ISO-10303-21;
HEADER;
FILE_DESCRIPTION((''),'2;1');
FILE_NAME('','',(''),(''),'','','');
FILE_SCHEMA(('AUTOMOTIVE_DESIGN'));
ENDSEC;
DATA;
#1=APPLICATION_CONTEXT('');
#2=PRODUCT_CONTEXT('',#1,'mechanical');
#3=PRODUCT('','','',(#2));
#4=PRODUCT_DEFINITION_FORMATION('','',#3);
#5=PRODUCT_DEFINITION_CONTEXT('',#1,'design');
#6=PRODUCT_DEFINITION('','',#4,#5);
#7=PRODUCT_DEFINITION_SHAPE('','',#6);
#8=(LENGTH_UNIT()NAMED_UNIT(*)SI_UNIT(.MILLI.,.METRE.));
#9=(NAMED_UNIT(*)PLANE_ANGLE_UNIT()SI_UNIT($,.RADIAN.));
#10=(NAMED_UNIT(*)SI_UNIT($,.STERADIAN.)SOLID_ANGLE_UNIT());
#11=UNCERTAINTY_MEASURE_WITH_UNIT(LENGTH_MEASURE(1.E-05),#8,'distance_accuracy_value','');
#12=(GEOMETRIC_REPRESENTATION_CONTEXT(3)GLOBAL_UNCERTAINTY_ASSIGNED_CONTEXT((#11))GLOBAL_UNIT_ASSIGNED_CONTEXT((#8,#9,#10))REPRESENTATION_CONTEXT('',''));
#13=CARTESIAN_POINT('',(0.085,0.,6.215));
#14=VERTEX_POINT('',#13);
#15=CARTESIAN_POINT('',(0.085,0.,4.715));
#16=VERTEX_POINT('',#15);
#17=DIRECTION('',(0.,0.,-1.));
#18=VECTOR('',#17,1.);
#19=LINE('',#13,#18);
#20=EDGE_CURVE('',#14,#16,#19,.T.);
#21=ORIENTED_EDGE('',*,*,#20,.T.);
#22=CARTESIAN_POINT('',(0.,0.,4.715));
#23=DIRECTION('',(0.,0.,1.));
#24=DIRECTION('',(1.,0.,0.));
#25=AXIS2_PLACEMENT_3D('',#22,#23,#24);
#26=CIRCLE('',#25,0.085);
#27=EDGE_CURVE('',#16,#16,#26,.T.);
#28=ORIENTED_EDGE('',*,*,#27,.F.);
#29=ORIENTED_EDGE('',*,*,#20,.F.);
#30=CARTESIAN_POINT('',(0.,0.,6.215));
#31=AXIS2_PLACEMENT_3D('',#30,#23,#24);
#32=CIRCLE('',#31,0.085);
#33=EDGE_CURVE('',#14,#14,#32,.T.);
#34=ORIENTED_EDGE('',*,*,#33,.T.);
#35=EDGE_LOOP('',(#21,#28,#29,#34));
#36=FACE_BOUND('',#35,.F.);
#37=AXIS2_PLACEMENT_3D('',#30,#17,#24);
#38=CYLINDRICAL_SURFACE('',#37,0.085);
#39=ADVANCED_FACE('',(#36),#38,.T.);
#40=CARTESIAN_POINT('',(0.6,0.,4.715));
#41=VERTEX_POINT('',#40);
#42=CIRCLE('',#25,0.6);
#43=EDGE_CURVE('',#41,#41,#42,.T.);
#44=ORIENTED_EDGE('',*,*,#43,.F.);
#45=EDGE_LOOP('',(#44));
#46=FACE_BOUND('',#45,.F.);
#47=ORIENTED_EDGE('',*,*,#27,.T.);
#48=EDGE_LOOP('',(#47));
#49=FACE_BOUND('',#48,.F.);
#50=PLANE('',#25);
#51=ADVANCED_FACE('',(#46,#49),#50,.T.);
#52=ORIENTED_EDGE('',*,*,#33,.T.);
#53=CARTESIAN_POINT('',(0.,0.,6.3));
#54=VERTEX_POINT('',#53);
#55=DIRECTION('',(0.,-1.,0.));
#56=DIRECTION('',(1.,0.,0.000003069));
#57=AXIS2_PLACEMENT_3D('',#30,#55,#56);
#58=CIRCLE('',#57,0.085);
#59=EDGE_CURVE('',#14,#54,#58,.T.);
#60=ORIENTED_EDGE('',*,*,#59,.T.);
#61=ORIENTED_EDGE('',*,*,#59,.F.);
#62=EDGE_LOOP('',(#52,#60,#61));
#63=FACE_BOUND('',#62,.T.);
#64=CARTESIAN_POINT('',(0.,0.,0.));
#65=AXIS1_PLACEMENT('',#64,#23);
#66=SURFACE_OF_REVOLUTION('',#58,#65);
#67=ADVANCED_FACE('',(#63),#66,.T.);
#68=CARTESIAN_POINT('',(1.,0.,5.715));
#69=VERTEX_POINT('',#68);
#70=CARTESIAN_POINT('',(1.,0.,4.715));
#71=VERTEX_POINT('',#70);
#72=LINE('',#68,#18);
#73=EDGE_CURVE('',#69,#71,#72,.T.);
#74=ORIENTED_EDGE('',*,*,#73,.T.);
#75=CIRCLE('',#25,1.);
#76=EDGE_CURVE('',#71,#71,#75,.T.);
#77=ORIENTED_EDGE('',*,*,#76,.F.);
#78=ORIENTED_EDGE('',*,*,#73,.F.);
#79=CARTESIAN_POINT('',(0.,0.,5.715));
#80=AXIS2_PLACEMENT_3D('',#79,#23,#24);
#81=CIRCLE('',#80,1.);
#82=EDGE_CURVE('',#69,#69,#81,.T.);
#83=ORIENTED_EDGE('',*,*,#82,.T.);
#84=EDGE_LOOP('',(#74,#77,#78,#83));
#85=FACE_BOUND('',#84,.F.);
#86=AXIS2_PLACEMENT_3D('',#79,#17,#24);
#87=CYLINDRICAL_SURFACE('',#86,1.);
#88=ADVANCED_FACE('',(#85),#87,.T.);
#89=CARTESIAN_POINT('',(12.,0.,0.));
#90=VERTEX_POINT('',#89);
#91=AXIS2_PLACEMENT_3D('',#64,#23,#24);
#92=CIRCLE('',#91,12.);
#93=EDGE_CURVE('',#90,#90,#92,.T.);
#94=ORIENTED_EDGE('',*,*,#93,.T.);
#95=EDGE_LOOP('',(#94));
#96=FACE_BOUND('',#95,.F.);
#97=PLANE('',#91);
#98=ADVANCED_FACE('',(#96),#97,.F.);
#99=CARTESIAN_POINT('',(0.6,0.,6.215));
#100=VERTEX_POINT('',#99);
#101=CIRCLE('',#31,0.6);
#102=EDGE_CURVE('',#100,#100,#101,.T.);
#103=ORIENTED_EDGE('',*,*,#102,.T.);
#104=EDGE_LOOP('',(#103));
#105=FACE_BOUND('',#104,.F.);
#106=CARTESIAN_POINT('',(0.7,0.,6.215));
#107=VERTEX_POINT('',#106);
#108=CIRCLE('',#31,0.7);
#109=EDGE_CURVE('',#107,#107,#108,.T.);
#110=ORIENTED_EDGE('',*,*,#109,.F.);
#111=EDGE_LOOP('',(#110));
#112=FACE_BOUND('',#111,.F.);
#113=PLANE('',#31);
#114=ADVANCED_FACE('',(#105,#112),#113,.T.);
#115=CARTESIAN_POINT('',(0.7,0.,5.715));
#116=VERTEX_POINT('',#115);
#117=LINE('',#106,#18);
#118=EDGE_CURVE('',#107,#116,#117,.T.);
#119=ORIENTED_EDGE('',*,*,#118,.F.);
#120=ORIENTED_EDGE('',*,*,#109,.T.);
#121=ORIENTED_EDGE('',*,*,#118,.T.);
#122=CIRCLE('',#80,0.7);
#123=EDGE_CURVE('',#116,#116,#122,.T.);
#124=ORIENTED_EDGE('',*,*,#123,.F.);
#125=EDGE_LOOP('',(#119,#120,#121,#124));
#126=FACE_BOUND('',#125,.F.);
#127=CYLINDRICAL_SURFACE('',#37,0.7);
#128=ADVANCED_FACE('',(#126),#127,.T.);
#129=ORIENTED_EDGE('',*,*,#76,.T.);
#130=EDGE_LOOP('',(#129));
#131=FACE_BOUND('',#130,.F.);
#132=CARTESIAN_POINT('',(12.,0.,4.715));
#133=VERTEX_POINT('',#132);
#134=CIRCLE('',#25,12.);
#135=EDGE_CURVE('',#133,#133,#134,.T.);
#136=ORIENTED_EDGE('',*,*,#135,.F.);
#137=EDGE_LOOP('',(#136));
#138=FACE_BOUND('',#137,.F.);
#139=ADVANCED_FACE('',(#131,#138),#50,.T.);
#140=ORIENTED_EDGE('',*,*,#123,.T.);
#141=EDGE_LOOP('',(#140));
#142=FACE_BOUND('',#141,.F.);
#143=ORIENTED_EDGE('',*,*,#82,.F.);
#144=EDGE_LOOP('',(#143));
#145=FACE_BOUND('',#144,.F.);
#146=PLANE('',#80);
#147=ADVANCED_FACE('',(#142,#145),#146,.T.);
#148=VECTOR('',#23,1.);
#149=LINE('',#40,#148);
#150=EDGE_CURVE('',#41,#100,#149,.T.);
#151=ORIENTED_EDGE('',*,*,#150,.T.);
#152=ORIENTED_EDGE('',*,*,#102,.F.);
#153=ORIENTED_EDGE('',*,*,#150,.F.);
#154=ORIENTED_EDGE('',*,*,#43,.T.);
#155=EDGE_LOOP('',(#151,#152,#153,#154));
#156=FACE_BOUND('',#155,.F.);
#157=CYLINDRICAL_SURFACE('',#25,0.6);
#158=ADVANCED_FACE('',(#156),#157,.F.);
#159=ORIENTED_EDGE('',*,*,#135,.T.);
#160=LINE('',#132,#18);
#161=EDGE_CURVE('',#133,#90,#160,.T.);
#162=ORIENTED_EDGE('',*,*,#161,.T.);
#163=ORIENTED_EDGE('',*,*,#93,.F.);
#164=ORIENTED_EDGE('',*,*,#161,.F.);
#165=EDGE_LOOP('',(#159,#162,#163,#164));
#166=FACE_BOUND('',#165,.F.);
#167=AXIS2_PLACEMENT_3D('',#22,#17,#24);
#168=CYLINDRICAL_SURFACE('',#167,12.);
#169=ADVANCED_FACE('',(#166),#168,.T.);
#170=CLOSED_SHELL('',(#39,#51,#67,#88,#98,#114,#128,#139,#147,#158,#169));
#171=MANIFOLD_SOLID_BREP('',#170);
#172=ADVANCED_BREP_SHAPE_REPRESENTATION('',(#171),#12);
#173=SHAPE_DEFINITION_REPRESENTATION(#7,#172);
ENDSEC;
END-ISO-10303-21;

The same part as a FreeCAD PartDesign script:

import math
import FreeCAD as App
import Part
import Sketcher
from FreeCAD import Vector
Q = App.Units.Quantity

doc = App.newDocument("Part")
body = doc.addObject("PartDesign::Body", "Body")

sketch1 = body.newObject("Sketcher::SketchObject", "Sketch")
sketch1.AttachmentSupport = (doc.getObject("XZ_Plane"), [""])
sketch1.MapMode = "FlatFace"
sketch1.addGeometry(Part.LineSegment(Vector(0.09, 4.71, 0), Vector(0.09, 6.21, 0)), False)
sketch1.addGeometry(Part.ArcOfCircle(Part.Circle(Vector(0, 6.21, 0), Vector(0, 0, 1), 0.09), math.radians(0), math.radians(90)), False)
sketch1.addGeometry(Part.LineSegment(Vector(0, 6.3, 0), Vector(0, 0, 0)), False)
sketch1.addGeometry(Part.LineSegment(Vector(0, 0, 0), Vector(12, 0, 0)), False)
sketch1.addGeometry(Part.LineSegment(Vector(12, 0, 0), Vector(12, 4.71, 0)), False)
sketch1.addGeometry(Part.LineSegment(Vector(12, 4.71, 0), Vector(1, 4.71, 0)), False)
sketch1.addGeometry(Part.LineSegment(Vector(1, 4.71, 0), Vector(1, 5.71, 0)), False)
sketch1.addGeometry(Part.LineSegment(Vector(1, 5.71, 0), Vector(0.7, 5.71, 0)), False)
sketch1.addGeometry(Part.LineSegment(Vector(0.7, 5.71, 0), Vector(0.7, 6.21, 0)), False)
sketch1.addGeometry(Part.LineSegment(Vector(0.7, 6.21, 0), Vector(0.6, 6.21, 0)), False)
sketch1.addGeometry(Part.LineSegment(Vector(0.6, 6.21, 0), Vector(0.6, 4.71, 0)), False)
sketch1.addGeometry(Part.LineSegment(Vector(0.6, 4.71, 0), Vector(0.09, 4.71, 0)), False)
sketch1.addConstraint(Sketcher.Constraint("Coincident", 0, 2, 1, 1))
sketch1.addConstraint(Sketcher.Constraint("Coincident", 1, 2, 2, 1))
sketch1.addConstraint(Sketcher.Constraint("Coincident", 2, 2, 3, 1))
sketch1.addConstraint(Sketcher.Constraint("Coincident", 3, 2, 4, 1))
sketch1.addConstraint(Sketcher.Constraint("Coincident", 4, 2, 5, 1))
sketch1.addConstraint(Sketcher.Constraint("Coincident", 5, 2, 6, 1))
sketch1.addConstraint(Sketcher.Constraint("Coincident", 6, 2, 7, 1))
sketch1.addConstraint(Sketcher.Constraint("Coincident", 7, 2, 8, 1))
sketch1.addConstraint(Sketcher.Constraint("Coincident", 8, 2, 9, 1))
sketch1.addConstraint(Sketcher.Constraint("Coincident", 9, 2, 10, 1))
sketch1.addConstraint(Sketcher.Constraint("Coincident", 10, 2, 11, 1))
sketch1.addConstraint(Sketcher.Constraint("Coincident", 11, 2, 0, 1))
sketch1.addConstraint(Sketcher.Constraint("Vertical", 0))
sketch1.addConstraint(Sketcher.Constraint("Vertical", 2))
sketch1.addConstraint(Sketcher.Constraint("Horizontal", 3))
sketch1.addConstraint(Sketcher.Constraint("Vertical", 4))
sketch1.addConstraint(Sketcher.Constraint("Horizontal", 5))
sketch1.addConstraint(Sketcher.Constraint("Vertical", 6))
sketch1.addConstraint(Sketcher.Constraint("Horizontal", 7))
sketch1.addConstraint(Sketcher.Constraint("Vertical", 8))
sketch1.addConstraint(Sketcher.Constraint("Horizontal", 9))
sketch1.addConstraint(Sketcher.Constraint("Vertical", 10))
sketch1.addConstraint(Sketcher.Constraint("Horizontal", 11))
sketch1.addConstraint(Sketcher.Constraint("Coincident", 2, 2, -1, 1))
sketch1.addConstraint(Sketcher.Constraint("PointOnObject", 1, 3, -2))
sketch1.addConstraint(Sketcher.Constraint("Horizontal", 1, 3, 0, 2))
sketch1.addConstraint(Sketcher.Constraint("Horizontal", 0, 2, 8, 2))
sketch1.addConstraint(Sketcher.Constraint("Horizontal", 5, 2, 10, 2))
sketch1.addConstraint(Sketcher.Constraint("DistanceX", 3, 1, 3, 2, Q("12 mm")))
sketch1.addConstraint(Sketcher.Constraint("DistanceX", 5, 2, 5, 1, Q("11 mm")))
sketch1.addConstraint(Sketcher.Constraint("DistanceY", 6, 1, 6, 2, Q("1 mm")))
sketch1.addConstraint(Sketcher.Constraint("DistanceX", 7, 2, 7, 1, Q("0.3 mm")))
sketch1.addConstraint(Sketcher.Constraint("DistanceX", 9, 2, 9, 1, Q("0.1 mm")))
sketch1.addConstraint(Sketcher.Constraint("DistanceY", 0, 1, 0, 2, Q("1.5 mm")))
sketch1.addConstraint(Sketcher.Constraint("DistanceY", 2, 2, 2, 1, Q("6.3 mm")))
sketch1.addConstraint(Sketcher.Constraint("Radius", 1, Q("0.085 mm")))
revolution = body.newObject("PartDesign::Revolution", "Revolution")
revolution.Profile = sketch1
revolution.ReferenceAxis = (sketch1, ["V_Axis"])
revolution.Angle = 360

doc.recompute()
